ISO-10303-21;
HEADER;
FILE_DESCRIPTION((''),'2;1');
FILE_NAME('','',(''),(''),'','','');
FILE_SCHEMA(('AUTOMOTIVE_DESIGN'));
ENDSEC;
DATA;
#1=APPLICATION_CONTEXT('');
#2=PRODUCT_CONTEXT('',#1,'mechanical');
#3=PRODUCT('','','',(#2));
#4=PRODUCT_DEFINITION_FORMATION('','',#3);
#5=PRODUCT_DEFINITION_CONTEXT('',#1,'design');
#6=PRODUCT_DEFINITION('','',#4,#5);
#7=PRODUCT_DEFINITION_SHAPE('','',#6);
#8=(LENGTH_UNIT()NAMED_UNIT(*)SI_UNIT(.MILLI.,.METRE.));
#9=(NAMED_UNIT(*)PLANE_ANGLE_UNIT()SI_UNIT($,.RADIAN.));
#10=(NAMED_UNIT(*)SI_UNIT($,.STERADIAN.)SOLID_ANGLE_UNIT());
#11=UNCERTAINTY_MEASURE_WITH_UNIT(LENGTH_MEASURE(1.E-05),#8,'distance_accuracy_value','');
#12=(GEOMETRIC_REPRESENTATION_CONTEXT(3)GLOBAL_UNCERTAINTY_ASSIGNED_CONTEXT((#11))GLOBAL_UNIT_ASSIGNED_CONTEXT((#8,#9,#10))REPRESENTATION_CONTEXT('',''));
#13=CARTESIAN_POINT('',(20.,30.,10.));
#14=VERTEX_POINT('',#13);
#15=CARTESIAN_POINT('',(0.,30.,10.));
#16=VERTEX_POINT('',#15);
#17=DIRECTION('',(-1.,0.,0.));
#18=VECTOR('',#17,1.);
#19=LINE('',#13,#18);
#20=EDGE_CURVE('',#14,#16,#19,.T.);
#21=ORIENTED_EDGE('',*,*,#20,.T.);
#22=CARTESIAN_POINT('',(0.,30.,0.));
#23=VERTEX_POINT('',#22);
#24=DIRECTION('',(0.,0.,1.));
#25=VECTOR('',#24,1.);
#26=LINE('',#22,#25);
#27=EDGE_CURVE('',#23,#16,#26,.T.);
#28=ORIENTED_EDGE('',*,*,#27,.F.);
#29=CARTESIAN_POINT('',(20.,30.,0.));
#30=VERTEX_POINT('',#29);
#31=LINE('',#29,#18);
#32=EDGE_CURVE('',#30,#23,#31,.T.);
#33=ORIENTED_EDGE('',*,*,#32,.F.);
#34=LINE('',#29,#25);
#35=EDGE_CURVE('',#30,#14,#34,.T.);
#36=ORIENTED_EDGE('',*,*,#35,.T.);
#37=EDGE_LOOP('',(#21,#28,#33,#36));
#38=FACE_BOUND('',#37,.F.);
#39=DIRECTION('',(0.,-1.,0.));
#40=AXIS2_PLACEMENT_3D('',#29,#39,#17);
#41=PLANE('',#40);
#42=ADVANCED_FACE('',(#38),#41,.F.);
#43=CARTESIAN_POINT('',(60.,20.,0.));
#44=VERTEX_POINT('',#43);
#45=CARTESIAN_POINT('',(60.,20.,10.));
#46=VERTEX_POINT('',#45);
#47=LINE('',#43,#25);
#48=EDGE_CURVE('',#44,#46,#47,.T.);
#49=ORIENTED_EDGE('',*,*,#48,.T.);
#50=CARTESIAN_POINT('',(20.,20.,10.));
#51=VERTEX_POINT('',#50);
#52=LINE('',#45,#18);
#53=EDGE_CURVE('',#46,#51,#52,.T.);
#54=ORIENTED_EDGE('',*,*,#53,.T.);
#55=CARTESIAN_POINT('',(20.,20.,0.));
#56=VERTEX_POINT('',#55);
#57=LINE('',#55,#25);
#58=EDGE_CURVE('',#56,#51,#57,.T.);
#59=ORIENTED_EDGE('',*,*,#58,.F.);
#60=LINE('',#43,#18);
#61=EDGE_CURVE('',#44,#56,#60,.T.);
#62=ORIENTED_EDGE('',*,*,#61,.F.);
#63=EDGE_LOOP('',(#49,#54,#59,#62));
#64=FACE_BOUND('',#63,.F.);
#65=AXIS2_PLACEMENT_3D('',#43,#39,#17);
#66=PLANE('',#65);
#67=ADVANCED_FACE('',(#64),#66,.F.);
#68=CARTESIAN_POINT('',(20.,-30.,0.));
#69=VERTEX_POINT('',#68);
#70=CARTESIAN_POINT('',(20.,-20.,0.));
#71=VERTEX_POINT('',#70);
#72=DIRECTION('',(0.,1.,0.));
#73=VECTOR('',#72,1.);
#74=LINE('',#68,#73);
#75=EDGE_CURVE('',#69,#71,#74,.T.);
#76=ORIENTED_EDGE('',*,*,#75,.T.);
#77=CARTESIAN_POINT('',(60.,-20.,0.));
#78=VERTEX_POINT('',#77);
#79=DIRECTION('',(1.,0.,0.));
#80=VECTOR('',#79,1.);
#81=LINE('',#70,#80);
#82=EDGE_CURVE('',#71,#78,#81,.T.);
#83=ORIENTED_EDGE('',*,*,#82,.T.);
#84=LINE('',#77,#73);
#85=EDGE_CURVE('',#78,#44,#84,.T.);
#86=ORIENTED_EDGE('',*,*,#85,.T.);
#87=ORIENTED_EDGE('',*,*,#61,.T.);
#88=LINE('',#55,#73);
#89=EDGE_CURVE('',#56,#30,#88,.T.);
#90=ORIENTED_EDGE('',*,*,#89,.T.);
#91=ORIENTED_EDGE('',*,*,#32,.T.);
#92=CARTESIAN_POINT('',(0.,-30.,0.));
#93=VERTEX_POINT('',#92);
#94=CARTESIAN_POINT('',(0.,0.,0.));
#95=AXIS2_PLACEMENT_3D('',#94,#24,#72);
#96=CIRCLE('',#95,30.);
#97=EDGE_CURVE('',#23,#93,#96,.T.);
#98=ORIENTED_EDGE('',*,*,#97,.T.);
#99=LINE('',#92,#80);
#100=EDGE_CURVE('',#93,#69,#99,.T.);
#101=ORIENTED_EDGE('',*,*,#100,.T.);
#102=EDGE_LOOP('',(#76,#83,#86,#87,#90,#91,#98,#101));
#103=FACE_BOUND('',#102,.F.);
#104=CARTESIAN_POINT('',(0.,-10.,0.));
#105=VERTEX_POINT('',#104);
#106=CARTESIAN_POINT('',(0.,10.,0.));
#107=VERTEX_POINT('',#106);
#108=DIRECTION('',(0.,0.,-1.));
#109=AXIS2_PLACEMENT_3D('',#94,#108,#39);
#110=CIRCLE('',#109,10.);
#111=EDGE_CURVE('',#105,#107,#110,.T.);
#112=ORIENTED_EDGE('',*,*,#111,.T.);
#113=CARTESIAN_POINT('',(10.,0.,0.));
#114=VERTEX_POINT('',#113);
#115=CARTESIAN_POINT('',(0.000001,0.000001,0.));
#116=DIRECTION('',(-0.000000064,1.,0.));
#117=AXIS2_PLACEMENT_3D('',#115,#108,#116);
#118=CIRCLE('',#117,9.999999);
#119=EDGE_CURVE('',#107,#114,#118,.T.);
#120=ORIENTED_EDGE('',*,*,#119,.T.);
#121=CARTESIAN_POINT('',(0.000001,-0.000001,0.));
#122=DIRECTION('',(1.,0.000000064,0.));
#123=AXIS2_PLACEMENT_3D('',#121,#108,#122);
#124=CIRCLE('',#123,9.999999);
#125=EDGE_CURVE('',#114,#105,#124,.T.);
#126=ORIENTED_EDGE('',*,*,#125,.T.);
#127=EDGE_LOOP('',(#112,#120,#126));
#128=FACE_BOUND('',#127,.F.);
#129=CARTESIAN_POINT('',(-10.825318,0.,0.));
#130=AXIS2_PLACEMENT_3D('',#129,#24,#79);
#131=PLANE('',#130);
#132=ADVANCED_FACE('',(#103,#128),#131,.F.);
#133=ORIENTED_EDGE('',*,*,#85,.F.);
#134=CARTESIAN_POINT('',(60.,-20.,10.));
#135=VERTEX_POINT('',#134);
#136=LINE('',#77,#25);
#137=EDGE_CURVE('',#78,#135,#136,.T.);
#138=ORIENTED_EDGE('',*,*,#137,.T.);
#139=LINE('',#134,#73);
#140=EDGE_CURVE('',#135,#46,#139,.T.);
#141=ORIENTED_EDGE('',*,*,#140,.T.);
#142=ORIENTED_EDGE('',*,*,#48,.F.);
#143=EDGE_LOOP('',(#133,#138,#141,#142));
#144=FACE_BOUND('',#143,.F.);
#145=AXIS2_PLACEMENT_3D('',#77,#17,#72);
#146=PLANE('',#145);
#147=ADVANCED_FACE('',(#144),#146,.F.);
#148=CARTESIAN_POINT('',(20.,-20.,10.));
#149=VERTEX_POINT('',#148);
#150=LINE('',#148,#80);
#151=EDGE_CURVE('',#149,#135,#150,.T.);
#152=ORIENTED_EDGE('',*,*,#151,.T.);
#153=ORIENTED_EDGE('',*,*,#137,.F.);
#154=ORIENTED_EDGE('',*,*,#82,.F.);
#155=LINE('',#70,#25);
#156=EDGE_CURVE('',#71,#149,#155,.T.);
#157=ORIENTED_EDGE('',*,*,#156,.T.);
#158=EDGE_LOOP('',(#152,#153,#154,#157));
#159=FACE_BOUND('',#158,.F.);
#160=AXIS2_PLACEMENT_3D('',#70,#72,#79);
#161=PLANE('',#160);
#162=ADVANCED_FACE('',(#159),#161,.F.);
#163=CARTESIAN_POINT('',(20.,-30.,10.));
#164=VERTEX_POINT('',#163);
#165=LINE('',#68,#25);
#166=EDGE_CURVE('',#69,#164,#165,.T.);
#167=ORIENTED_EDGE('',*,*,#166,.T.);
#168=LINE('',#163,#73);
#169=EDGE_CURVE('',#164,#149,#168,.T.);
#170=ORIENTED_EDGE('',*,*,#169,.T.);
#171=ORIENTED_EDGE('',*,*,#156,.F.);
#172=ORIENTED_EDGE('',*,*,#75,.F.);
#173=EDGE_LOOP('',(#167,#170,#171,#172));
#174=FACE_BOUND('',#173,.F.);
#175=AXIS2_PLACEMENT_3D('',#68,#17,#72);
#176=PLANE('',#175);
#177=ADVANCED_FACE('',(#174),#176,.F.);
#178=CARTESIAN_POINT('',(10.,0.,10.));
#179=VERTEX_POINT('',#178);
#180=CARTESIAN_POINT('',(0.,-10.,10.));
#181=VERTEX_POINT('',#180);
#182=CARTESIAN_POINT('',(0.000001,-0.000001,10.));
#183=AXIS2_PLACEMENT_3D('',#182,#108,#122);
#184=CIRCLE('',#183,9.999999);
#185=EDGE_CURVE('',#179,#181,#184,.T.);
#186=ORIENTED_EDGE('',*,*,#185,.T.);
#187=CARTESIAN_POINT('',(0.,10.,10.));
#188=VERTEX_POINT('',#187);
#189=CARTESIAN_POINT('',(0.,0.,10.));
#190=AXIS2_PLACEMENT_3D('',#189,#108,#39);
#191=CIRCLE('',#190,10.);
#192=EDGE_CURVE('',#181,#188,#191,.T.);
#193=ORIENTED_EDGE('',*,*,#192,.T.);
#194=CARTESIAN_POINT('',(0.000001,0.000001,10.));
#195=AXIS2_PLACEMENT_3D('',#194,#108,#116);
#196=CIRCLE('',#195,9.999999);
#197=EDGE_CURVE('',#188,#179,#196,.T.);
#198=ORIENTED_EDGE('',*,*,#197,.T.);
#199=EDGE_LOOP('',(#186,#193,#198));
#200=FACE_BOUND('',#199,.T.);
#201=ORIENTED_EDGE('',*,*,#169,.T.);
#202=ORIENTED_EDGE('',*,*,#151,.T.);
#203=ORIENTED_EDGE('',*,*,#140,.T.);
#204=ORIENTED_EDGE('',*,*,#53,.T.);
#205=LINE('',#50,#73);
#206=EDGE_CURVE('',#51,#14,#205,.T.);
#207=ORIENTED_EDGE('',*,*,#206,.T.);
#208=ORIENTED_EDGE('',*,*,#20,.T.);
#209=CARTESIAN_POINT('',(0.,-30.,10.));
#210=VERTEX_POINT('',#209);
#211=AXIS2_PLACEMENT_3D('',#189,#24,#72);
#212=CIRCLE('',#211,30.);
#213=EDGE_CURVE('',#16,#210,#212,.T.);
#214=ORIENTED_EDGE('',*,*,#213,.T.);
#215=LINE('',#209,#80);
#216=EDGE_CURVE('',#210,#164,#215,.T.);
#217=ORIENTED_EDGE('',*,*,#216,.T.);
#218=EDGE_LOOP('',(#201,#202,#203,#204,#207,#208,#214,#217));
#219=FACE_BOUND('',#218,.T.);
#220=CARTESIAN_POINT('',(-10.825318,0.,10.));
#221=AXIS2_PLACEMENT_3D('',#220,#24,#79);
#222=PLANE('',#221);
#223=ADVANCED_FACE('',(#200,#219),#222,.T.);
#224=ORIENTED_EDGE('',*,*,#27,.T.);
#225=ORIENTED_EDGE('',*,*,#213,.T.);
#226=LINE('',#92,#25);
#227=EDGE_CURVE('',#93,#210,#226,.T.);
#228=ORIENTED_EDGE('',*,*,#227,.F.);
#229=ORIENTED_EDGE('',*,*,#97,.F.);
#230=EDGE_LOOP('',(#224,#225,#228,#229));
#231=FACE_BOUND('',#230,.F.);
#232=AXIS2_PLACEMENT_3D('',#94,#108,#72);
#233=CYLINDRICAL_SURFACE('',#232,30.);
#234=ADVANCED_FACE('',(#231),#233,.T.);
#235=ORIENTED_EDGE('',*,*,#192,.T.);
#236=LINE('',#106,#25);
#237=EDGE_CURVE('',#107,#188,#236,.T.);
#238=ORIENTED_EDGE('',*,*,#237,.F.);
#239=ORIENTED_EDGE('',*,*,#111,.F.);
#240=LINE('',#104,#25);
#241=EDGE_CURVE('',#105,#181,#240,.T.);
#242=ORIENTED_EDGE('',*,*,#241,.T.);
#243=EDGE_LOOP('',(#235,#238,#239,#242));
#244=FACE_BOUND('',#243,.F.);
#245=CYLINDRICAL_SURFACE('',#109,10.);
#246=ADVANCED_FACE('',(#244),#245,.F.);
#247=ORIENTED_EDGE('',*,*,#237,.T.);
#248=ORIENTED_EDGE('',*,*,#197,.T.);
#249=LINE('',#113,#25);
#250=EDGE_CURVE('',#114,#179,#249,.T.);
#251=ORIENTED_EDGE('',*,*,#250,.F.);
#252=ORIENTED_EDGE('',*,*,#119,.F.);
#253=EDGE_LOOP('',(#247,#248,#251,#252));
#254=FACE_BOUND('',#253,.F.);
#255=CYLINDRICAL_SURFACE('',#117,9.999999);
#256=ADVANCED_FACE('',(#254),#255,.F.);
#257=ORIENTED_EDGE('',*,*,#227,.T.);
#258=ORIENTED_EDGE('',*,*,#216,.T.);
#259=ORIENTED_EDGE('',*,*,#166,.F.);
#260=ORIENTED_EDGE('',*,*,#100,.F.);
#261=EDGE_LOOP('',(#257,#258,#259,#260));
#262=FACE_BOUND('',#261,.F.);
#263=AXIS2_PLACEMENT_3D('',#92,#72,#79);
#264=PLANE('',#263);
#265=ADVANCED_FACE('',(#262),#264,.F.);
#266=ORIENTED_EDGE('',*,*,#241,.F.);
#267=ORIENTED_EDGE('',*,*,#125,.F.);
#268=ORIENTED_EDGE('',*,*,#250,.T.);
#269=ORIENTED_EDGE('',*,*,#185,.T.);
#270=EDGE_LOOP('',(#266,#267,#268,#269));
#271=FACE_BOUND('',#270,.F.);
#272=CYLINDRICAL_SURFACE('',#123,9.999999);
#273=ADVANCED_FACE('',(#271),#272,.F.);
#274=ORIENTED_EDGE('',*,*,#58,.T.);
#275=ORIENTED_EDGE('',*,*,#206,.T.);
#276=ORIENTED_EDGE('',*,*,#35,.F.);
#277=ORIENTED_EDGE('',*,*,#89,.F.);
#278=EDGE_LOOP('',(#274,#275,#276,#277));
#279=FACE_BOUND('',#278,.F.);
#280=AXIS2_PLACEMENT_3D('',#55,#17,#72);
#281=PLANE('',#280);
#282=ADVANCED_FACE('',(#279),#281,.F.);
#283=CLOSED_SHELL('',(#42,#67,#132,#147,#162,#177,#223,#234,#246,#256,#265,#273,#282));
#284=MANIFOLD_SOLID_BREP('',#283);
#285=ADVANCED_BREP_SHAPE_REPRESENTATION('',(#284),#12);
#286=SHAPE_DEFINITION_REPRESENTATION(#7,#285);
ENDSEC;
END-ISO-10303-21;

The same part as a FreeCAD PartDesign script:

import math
import FreeCAD as App
import Part
import Sketcher

doc = App.newDocument("Part")
params = doc.addObject("Spreadsheet::Sheet", "Params")
for row, (alias, value) in enumerate([
    ("sketch1_radius", "30 mm"),
    ("sketch1_radius2", "10 mm"),
    ("sketch1_width", "40 mm"),
    ("sketch1_width2", "20 mm"),
    ("pad1_length", "10 mm"),
], start=1):
    params.set(f"A{row}", alias)
    params.set(f"B{row}", "=" + value)
    params.setAlias(f"B{row}", alias)

body = doc.addObject("PartDesign::Body", "Body")

# Sketch on XY plane
sketch1 = doc.addObject("Sketcher::SketchObject", "Sketch")
body.addObject(sketch1)
sketch1.AttachmentSupport = (doc.XY_Plane, [""])
sketch1.MapMode = "FlatFace"
sketch1.addGeometry(Part.LineSegment(App.Vector(60, 20, 0), App.Vector(20, 20, 0)), False)
sketch1.addGeometry(Part.LineSegment(App.Vector(20, 20, 0), App.Vector(20, 30, 0)), False)
sketch1.addGeometry(Part.LineSegment(App.Vector(20, 30, 0), App.Vector(0, 30, 0)), False)
sketch1.addGeometry(Part.ArcOfCircle(Part.Circle(App.Vector(0, 0, 0), App.Vector(0, 0, 1), 30), math.radians(90), math.radians(270)), False)
sketch1.addGeometry(Part.LineSegment(App.Vector(0, -30, 0), App.Vector(20, -30, 0)), False)
sketch1.addGeometry(Part.LineSegment(App.Vector(20, -30, 0), App.Vector(20, -20, 0)), False)
sketch1.addGeometry(Part.LineSegment(App.Vector(20, -20, 0), App.Vector(60, -20, 0)), False)
sketch1.addGeometry(Part.LineSegment(App.Vector(60, -20, 0), App.Vector(60, 20, 0)), False)
sketch1.addGeometry(Part.ArcOfCircle(Part.Circle(App.Vector(0, 0, 0), App.Vector(0, 0, 1), 10), math.radians(90), math.radians(270)), False)
sketch1.addGeometry(Part.ArcOfCircle(Part.Circle(App.Vector(0, 0, 0), App.Vector(0, 0, 1), 10), math.radians(0), math.radians(90)), False)
sketch1.addGeometry(Part.ArcOfCircle(Part.Circle(App.Vector(0, 0, 0), App.Vector(0, 0, 1), 10), math.radians(-90), math.radians(0)), False)
sketch1.addConstraint(Sketcher.Constraint("Coincident", 0, 2, 1, 1))
sketch1.addConstraint(Sketcher.Constraint("Coincident", 1, 2, 2, 1))
sketch1.addConstraint(Sketcher.Constraint("Tangent", 2, 2, 3, 1))
sketch1.addConstraint(Sketcher.Constraint("Tangent", 3, 2, 4, 1))
sketch1.addConstraint(Sketcher.Constraint("Coincident", 4, 2, 5, 1))
sketch1.addConstraint(Sketcher.Constraint("Coincident", 5, 2, 6, 1))
sketch1.addConstraint(Sketcher.Constraint("Coincident", 6, 2, 7, 1))
sketch1.addConstraint(Sketcher.Constraint("Coincident", 7, 2, 0, 1))
sketch1.addConstraint(Sketcher.Constraint("Tangent", 8, 1, 9, 2))
sketch1.addConstraint(Sketcher.Constraint("Tangent", 9, 1, 10, 2))
sketch1.addConstraint(Sketcher.Constraint("Tangent", 10, 1, 8, 2))
sketch1.addConstraint(Sketcher.Constraint("Horizontal", 0))
sketch1.addConstraint(Sketcher.Constraint("Vertical", 1))
sketch1.addConstraint(Sketcher.Constraint("Horizontal", 2))
sketch1.addConstraint(Sketcher.Constraint("Horizontal", 4))
sketch1.addConstraint(Sketcher.Constraint("Vertical", 5))
sketch1.addConstraint(Sketcher.Constraint("Horizontal", 6))
sketch1.addConstraint(Sketcher.Constraint("Vertical", 7))
sketch1.addConstraint(Sketcher.Constraint("Coincident", 3, 3, -1, 1))
sketch1.addConstraint(Sketcher.Constraint("Coincident", 8, 3, -1, 1))
sketch1.addConstraint(Sketcher.Constraint("Symmetric", 0, 2, 5, 2, -1))
sketch1.addConstraint(Sketcher.Constraint("PointOnObject", 8, 1, -2))
sketch1.addConstraint(Sketcher.Constraint("PointOnObject", 9, 1, -1))
sketch1.addConstraint(Sketcher.Constraint("PointOnObject", 10, 1, -2))
sketch1.addConstraint(Sketcher.Constraint("Equal", 6, 7))
sketch1.addConstraint(Sketcher.Constraint("Radius", 3, 30.0))
sketch1.addConstraint(Sketcher.Constraint("Radius", 8, 10.0))
sketch1.addConstraint(Sketcher.Constraint("DistanceX", 0, 2, 0, 1, 40.0))
sketch1.addConstraint(Sketcher.Constraint("DistanceX", 2, 2, 2, 1, 20.0))
sketch1.setExpression("Constraints[25]", "Params.sketch1_radius")
sketch1.setExpression("Constraints[26]", "Params.sketch1_radius2")
sketch1.setExpression("Constraints[27]", "Params.sketch1_width")
sketch1.setExpression("Constraints[28]", "Params.sketch1_width2")
pad1 = doc.addObject("PartDesign::Pad", "Pad")
body.addObject(pad1)
pad1.Profile = sketch1
pad1.setExpression("Length", "Params.pad1_length")

doc.recompute()
